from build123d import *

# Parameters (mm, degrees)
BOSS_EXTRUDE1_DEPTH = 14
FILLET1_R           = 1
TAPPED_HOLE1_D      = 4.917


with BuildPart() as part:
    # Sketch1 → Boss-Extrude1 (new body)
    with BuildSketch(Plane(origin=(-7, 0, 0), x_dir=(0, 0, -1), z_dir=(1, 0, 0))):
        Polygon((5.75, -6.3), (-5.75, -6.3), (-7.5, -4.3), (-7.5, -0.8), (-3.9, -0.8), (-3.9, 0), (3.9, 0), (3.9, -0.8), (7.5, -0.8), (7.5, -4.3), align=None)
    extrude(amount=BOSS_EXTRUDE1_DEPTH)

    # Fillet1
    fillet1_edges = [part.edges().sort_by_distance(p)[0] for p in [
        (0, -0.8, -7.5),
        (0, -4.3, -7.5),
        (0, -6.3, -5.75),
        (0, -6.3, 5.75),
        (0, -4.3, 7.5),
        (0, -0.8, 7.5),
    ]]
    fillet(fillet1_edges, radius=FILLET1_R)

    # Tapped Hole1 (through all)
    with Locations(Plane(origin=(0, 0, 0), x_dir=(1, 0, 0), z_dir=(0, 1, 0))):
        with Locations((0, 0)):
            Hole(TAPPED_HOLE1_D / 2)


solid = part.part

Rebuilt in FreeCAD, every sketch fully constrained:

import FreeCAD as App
import Part
import Sketcher

V = App.Vector


def edges_at(feature, points):
    """Names of the edges that pass closest to the given points."""
    edges = feature.Shape.Edges
    near = lambda p: min(range(len(edges)), key=lambda i: edges[i].distToShape(Part.Vertex(*p))[0])
    return sorted({f"Edge{near(p) + 1}" for p in points})

doc = App.newDocument("Part")
body = doc.addObject("PartDesign::Body", "Body")

sketch1 = doc.addObject("Sketcher::SketchObject", "Sketch")
body.addObject(sketch1)
sketch1.AttachmentSupport = (doc.YZ_Plane, [""])
sketch1.MapMode = "FlatFace"
sketch1.AttachmentOffset = App.Placement(V(0, 0, -7), App.Rotation())
sketch1.addGeometry([
    Part.LineSegment(V(-6.3, 5.75, 0), V(-6.3, -5.75, 0)),
    Part.LineSegment(V(-6.3, -5.75, 0), V(-4.3, -7.5, 0)),
    Part.LineSegment(V(-4.3, -7.5, 0), V(-0.8, -7.5, 0)),
    Part.LineSegment(V(-0.8, -7.5, 0), V(-0.8, -3.9, 0)),
    Part.LineSegment(V(-0.8, -3.9, 0), V(0, -3.9, 0)),
    Part.LineSegment(V(0, -3.9, 0), V(0, 3.9, 0)),
    Part.LineSegment(V(0, 3.9, 0), V(-0.8, 3.9, 0)),
    Part.LineSegment(V(-0.8, 3.9, 0), V(-0.8, 7.5, 0)),
    Part.LineSegment(V(-0.8, 7.5, 0), V(-4.3, 7.5, 0)),
    Part.LineSegment(V(-4.3, 7.5, 0), V(-6.3, 5.75, 0)),
], False)
sketch1.addConstraint([
    Sketcher.Constraint("Coincident", 0, 2, 1, 1),
    Sketcher.Constraint("Coincident", 1, 2, 2, 1),
    Sketcher.Constraint("Coincident", 2, 2, 3, 1),
    Sketcher.Constraint("Coincident", 3, 2, 4, 1),
    Sketcher.Constraint("Coincident", 4, 2, 5, 1),
    Sketcher.Constraint("Coincident", 5, 2, 6, 1),
    Sketcher.Constraint("Coincident", 6, 2, 7, 1),
    Sketcher.Constraint("Coincident", 7, 2, 8, 1),
    Sketcher.Constraint("Coincident", 8, 2, 9, 1),
    Sketcher.Constraint("Coincident", 9, 2, 0, 1),
    Sketcher.Constraint("Vertical", 0),
    Sketcher.Constraint("Horizontal", 2),
    Sketcher.Constraint("Vertical", 3),
    Sketcher.Constraint("Horizontal", 4),
    Sketcher.Constraint("Vertical", 5),
    Sketcher.Constraint("Horizontal", 6),
    Sketcher.Constraint("Vertical", 7),
    Sketcher.Constraint("Horizontal", 8),
    Sketcher.Constraint("Symmetric", 4, 2, 5, 2, -1, 1),
    Sketcher.Constraint("Symmetric", 2, 2, 7, 2, -1),
    Sketcher.Constraint("Vertical", 1, 2, 8, 2),
    Sketcher.Constraint("Equal", 1, 9),
    Sketcher.Constraint("DistanceX", 2, 1, 2, 2, 3.5),
    Sketcher.Constraint("DistanceX", 4, 1, 4, 2, 0.8),
    Sketcher.Constraint("DistanceY", 0, 2, 0, 1, 11.5),
    Sketcher.Constraint("DistanceY", 3, 1, 3, 2, 3.6),
    Sketcher.Constraint("DistanceY", 5, 1, 5, 2, 7.8),
    Sketcher.Constraint("DistanceX", 0, 2, 1, 2, 2.0),
])
pad1 = doc.addObject("PartDesign::Pad", "Pad")
body.addObject(pad1)
pad1.Profile = sketch1
pad1.Length = 14
doc.recompute()

fillet = doc.addObject("PartDesign::Fillet", "Fillet")
body.addObject(fillet)
fillet.Base = (pad1, edges_at(pad1, [
    (0, -0.8, -7.5),
    (0, -4.3, -7.5),
    (0, -6.3, -5.75),
    (0, -6.3, 5.75),
    (0, -4.3, 7.5),
    (0, -0.8, 7.5),
]))
fillet.Radius = 1

sketch2 = doc.addObject("Sketcher::SketchObject", "Sketch001")
body.addObject(sketch2)
sketch2.AttachmentSupport = (doc.XZ_Plane, [""])
sketch2.MapMode = "FlatFace"
sketch2.addGeometry(Part.Circle(V(0, 0, 0), V(0, 0, 1), 2.4585), False)
sketch2.addConstraint([
    Sketcher.Constraint("Coincident", 0, 3, -1, 1),
    Sketcher.Constraint("Diameter", 0, 4.917),
])
doc.recompute()
hole = doc.addObject("PartDesign::Hole", "Hole")
body.addObject(hole)
hole.Profile = sketch2
hole.ThreadType = "None"
hole.Diameter = 4.917
hole.DepthType = "ThroughAll"
hole.Reversed = True

doc.recompute()
